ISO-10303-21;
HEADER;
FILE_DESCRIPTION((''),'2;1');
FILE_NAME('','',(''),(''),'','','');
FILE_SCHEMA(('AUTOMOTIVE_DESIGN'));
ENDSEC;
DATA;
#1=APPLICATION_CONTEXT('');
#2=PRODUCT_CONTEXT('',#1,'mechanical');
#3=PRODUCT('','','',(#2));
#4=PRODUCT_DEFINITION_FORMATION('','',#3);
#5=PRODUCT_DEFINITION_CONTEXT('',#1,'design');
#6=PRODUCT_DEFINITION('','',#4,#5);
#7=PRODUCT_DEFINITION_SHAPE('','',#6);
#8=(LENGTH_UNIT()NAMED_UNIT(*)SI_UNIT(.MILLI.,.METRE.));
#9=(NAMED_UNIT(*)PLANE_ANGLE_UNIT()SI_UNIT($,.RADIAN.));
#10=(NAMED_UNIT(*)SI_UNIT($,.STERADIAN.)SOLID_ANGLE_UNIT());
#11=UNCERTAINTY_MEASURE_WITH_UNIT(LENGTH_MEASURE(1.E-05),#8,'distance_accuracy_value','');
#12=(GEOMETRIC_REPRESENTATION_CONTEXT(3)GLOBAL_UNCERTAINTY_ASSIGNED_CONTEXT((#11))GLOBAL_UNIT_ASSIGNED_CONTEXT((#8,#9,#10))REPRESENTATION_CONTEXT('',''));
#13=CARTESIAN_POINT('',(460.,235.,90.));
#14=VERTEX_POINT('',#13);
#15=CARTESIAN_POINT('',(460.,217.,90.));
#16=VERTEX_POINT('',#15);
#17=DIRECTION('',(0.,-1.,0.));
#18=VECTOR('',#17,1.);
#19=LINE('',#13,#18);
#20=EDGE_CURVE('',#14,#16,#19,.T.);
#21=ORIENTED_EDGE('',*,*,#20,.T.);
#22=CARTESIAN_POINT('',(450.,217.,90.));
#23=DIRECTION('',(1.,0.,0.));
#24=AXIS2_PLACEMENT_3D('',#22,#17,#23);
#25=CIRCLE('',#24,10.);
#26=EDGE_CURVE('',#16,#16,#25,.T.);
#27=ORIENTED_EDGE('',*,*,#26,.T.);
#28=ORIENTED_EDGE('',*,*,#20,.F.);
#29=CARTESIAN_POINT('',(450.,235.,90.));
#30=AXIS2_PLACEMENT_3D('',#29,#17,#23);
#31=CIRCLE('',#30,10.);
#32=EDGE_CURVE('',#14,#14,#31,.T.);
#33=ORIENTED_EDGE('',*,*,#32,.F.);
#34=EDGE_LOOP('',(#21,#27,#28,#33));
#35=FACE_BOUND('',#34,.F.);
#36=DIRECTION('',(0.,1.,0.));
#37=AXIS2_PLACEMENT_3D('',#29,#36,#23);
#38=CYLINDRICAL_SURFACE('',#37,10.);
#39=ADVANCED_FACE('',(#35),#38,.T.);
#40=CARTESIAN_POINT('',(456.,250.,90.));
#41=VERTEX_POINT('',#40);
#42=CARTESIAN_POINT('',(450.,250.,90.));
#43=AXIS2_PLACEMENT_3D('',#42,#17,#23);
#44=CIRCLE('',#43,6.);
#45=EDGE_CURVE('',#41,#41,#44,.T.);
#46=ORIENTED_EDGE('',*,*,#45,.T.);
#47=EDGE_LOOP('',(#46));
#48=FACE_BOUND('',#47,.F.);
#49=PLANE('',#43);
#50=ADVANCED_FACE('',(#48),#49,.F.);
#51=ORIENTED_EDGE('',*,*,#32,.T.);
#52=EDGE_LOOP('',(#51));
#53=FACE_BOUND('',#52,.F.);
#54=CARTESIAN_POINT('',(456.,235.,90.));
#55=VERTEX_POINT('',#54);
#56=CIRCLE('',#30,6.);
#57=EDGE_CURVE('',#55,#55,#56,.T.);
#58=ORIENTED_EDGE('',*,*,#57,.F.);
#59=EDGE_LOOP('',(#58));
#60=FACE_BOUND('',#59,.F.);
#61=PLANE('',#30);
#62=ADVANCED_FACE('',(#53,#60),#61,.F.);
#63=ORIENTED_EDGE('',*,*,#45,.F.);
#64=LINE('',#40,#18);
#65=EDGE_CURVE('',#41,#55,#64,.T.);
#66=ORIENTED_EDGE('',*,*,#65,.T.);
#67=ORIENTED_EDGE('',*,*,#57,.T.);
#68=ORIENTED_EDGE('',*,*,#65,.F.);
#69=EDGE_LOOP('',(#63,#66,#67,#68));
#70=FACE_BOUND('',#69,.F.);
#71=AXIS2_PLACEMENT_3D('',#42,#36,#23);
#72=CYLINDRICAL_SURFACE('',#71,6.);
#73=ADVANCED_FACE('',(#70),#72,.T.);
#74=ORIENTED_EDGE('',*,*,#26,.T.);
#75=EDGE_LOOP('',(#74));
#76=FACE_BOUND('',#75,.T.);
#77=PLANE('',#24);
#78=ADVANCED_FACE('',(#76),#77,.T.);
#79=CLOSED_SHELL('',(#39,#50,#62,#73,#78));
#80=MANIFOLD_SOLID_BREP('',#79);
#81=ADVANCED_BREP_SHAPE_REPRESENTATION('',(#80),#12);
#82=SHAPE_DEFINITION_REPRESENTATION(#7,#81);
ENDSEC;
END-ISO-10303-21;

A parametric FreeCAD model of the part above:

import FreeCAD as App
import Part
import Sketcher

V = App.Vector
Q = App.Units.Quantity

doc = App.newDocument("Part")
body = doc.addObject("PartDesign::Body", "Body")

# Sketch on XY plane
sketch1 = body.newObject("Sketcher::SketchObject", "Sketch")
sketch1.AttachmentSupport = (doc.getObject("XY_Plane"), [""])
sketch1.MapMode = "FlatFace"
sketch1.addGeometry(Part.Circle(V(0, 0, 0), V(0, 0, 1), 6), False)
sketch1.addConstraint([
    Sketcher.Constraint("Coincident", 0, 3, -1, 1),
    Sketcher.Constraint("Diameter", 0, Q("12 mm")),
])
pad1 = body.newObject("PartDesign::Pad", "Pad")
pad1.Profile = sketch1
pad1.Length = 15
body2 = doc.addObject("PartDesign::Body", "Body001")
doc.recompute()

body.Placement = App.Placement(V(0, 0, 0), App.Rotation(V(1, 0, 0), 90))
boolean = body2.newObject("PartDesign::Boolean", "Boolean")
boolean.Type = "Fuse"
boolean.addObjects([body])
body3 = doc.addObject("PartDesign::Body", "Body002")
doc.recompute()

body2.Placement = App.Placement(V(450, 250, 50), App.Rotation(V(0, 0, 1), 0))
boolean2 = body3.newObject("PartDesign::Boolean", "Boolean001")
boolean2.Type = "Fuse"
boolean2.addObjects([body2])
body4 = doc.addObject("PartDesign::Body", "Body003")

# Sketch on XY plane
sketch2 = body4.newObject("Sketcher::SketchObject", "Sketch001")
sketch2.AttachmentSupport = (doc.getObject("XY_Plane003"), [""])
sketch2.MapMode = "FlatFace"
sketch2.addGeometry(Part.Circle(V(0, 0, 0), V(0, 0, 1), 10), False)
sketch2.addConstraint([
    Sketcher.Constraint("Coincident", 0, 3, -1, 1),
    Sketcher.Constraint("Diameter", 0, Q("20 mm")),
])
pad2 = body4.newObject("PartDesign::Pad", "Pad001")
pad2.Profile = sketch2
pad2.Length = 18
body5 = doc.addObject("PartDesign::Body", "Body004")
doc.recompute()

body4.Placement = App.Placement(V(0, 0, 0), App.Rotation(V(1, 0, 0), 90))
boolean3 = body5.newObject("PartDesign::Boolean", "Boolean002")
boolean3.Type = "Fuse"
boolean3.addObjects([body4])
body6 = doc.addObject("PartDesign::Body", "Body005")
doc.recompute()

body5.Placement = App.Placement(V(450, 235, 50), App.Rotation(V(0, 0, 1), 0))
boolean4 = body6.newObject("PartDesign::Boolean", "Boolean003")
boolean4.Type = "Fuse"
boolean4.addObjects([body5])
doc.recompute()

boolean5 = body6.newObject("PartDesign::Boolean", "Boolean004")
boolean5.Type = "Fuse"
boolean5.addObjects([body3])
body7 = doc.addObject("PartDesign::Body", "Body006")
doc.recompute()

body6.Placement = App.Placement(V(0, 0, 40), App.Rotation(V(0, 0, 1), 0))
boolean6 = body7.newObject("PartDesign::Boolean", "Boolean005")
boolean6.Type = "Fuse"
boolean6.addObjects([body6])

doc.recompute()
